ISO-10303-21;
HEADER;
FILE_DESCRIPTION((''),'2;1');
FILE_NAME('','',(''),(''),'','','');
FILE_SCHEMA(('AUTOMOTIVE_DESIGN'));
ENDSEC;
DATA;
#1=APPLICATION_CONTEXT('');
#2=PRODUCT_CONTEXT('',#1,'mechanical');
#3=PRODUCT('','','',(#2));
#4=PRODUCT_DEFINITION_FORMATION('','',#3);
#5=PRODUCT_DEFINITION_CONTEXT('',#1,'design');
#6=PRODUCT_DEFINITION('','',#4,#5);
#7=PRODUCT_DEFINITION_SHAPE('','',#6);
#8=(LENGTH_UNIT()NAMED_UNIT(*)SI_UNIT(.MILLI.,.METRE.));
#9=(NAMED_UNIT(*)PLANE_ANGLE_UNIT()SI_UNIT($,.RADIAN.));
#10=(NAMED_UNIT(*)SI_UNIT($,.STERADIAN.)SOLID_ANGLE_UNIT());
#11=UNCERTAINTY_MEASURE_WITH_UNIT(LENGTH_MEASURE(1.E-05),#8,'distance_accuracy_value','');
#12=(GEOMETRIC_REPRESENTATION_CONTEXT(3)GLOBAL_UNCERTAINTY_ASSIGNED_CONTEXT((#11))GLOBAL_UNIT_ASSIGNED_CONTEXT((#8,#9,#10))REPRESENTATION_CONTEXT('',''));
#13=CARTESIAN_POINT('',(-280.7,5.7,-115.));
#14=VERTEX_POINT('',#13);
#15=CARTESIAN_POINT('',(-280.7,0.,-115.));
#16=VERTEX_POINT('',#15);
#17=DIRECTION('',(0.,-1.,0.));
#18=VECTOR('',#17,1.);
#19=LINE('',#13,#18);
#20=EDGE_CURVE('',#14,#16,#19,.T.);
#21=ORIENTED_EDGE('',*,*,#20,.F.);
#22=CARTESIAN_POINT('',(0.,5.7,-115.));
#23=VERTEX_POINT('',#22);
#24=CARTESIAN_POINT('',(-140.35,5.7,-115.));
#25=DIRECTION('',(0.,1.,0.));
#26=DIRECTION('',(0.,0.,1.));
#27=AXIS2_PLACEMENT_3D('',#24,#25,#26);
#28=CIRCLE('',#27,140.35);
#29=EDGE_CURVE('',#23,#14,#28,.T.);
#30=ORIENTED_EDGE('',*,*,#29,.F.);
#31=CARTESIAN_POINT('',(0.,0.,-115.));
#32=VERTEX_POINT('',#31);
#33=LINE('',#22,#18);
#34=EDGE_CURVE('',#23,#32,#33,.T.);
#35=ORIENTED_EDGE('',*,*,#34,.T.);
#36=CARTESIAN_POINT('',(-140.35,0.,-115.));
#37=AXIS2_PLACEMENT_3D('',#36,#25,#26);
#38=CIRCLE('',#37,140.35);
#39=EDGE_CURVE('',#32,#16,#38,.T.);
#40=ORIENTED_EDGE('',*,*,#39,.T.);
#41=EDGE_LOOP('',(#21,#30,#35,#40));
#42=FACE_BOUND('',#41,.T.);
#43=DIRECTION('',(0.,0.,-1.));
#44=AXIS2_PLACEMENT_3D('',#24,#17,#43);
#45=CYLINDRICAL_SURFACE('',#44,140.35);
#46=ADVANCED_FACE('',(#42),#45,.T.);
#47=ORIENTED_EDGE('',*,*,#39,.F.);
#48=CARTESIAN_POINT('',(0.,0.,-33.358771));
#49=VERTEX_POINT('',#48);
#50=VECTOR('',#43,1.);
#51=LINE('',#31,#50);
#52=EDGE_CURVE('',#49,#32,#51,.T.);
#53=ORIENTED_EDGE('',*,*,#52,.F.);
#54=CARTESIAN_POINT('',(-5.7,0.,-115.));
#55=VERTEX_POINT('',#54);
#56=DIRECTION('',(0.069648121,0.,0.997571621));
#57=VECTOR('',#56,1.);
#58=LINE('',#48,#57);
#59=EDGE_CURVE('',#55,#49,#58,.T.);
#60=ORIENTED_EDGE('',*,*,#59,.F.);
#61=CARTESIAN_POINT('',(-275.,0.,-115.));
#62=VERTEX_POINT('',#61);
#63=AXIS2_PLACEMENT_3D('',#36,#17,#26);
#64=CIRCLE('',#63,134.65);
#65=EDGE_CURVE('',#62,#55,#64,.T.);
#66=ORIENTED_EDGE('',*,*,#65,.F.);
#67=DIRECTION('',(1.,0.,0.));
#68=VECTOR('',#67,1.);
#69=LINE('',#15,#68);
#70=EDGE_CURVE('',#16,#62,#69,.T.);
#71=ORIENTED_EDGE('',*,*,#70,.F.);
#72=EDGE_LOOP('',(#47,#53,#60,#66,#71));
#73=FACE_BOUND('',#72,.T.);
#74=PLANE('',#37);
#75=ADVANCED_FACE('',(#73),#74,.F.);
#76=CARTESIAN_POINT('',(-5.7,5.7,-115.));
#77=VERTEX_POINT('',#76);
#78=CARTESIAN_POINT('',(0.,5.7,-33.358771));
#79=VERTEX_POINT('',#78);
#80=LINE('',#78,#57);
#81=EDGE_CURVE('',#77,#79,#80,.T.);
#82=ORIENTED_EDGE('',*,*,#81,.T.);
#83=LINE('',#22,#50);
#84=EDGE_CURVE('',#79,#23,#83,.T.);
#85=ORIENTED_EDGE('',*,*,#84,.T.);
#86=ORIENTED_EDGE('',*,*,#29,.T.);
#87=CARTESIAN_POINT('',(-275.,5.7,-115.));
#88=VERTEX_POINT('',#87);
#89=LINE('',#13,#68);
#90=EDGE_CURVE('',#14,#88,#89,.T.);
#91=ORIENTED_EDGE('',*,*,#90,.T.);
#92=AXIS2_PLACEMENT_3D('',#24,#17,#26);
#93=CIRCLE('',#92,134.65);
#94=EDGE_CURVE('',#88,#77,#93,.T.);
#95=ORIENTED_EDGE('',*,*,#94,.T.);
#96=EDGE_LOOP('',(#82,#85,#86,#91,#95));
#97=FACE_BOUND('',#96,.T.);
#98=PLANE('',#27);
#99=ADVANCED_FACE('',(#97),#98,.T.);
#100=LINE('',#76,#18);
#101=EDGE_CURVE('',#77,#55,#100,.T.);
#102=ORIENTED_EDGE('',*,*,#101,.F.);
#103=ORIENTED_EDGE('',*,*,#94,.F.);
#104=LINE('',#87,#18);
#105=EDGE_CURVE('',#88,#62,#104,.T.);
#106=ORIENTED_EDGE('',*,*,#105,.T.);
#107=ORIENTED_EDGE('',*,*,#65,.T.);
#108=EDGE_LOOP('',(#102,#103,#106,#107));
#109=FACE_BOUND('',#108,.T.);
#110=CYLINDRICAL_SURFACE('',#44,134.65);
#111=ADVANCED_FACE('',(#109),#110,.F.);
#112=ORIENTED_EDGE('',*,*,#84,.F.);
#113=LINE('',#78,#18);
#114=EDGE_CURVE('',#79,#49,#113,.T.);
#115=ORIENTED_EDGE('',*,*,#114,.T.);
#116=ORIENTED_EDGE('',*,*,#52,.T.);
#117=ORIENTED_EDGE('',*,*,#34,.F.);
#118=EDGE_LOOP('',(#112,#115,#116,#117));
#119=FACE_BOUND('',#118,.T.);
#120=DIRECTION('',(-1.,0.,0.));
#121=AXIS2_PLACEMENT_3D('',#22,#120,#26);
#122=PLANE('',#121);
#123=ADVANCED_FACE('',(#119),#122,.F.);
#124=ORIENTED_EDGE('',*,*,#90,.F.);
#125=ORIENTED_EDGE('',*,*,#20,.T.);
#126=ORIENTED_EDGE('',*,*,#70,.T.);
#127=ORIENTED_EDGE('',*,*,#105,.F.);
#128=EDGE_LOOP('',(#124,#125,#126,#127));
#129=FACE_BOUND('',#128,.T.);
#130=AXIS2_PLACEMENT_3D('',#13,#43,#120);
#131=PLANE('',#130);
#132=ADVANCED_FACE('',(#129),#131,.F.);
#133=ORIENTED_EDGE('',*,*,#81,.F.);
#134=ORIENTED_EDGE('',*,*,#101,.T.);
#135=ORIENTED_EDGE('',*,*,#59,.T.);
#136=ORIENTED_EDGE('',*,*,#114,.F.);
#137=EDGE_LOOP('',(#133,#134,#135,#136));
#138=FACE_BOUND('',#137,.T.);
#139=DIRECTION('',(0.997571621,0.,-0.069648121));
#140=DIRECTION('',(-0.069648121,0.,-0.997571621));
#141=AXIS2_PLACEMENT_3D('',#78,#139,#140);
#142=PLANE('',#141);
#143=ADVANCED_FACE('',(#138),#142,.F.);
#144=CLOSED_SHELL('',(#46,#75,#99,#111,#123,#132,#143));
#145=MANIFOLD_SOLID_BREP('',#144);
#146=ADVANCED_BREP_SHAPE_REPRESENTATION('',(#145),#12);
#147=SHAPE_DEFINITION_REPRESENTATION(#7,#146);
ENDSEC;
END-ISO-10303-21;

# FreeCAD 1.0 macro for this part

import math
import FreeCAD as App
import Part
import Sketcher
Q = App.Units.Quantity

doc = App.newDocument("Part")
body = doc.addObject("PartDesign::Body", "Body")

sketch1 = body.newObject("Sketcher::SketchObject", "Sketch")
sketch1.AttachmentSupport = (doc.getObject("XZ_Plane"), [""])
sketch1.MapMode = "FlatFace"
sketch1.addGeometry(Part.LineSegment(App.Vector(-281, -115, 0), App.Vector(-275, -115, 0)), False)
sketch1.addGeometry(Part.ArcOfCircle(Part.Circle(App.Vector(-140, -115, 0), App.Vector(0, 0, 1), 135), math.radians(180), math.radians(360)), False)
sketch1.addGeometry(Part.LineSegment(App.Vector(-6, -115, 0), App.Vector(0, -33, 0)), False)
sketch1.addGeometry(Part.LineSegment(App.Vector(0, -33, 0), App.Vector(0, -115, 0)), False)
sketch1.addGeometry(Part.ArcOfCircle(Part.Circle(App.Vector(-140, -115, 0), App.Vector(0, 0, 1), 140), math.radians(180), math.radians(360)), False)
sketch1.addConstraint(Sketcher.Constraint("Coincident", 0, 2, 1, 1))
sketch1.addConstraint(Sketcher.Constraint("Coincident", 1, 2, 2, 1))
sketch1.addConstraint(Sketcher.Constraint("Coincident", 2, 2, 3, 1))
sketch1.addConstraint(Sketcher.Constraint("Tangent", 3, 2, 4, 2))
sketch1.addConstraint(Sketcher.Constraint("Coincident", 4, 1, 0, 1))
sketch1.addConstraint(Sketcher.Constraint("Horizontal", 0))
sketch1.addConstraint(Sketcher.Constraint("Vertical", 3))
sketch1.addConstraint(Sketcher.Constraint("Coincident", 4, 3, 1, 3))
sketch1.addConstraint(Sketcher.Constraint("PointOnObject", 2, 2, -2))
sketch1.addConstraint(Sketcher.Constraint("Horizontal", 4, 3, 0, 2))
sketch1.addConstraint(Sketcher.Constraint("Horizontal", 0, 2, 1, 2))
sketch1.addConstraint(Sketcher.Constraint("Radius", 1, Q("134.65 mm")))
sketch1.addConstraint(Sketcher.Constraint("Radius", 4, Q("140.35 mm")))
sketch1.addConstraint(Sketcher.Constraint("DistanceY", 1, 3, -1, 1, Q("115 mm")))
sketch1.addConstraint(Sketcher.Constraint("DistanceY", 3, 2, 3, 1, Q("81.641229 mm")))
pad1 = body.newObject("PartDesign::Pad", "Pad")
pad1.Profile = sketch1
pad1.Length = 5.7
pad1.Reversed = True

doc.recompute()
